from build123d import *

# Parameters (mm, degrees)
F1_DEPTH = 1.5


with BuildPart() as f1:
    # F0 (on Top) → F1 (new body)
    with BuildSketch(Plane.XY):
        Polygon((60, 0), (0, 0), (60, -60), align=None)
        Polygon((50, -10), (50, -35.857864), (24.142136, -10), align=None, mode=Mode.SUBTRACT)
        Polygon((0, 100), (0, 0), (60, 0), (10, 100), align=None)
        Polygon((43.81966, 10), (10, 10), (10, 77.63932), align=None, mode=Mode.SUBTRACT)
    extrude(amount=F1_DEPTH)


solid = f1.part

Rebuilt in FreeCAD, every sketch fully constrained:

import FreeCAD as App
import Part
import Sketcher
Q = App.Units.Quantity


def add_polygon(sketch, points):
    """Adds a closed chain of lines whose ends are joined by coincident constraints."""
    first, n = sketch.GeometryCount, len(points)
    for a, b in zip(points, points[1:] + points[:1]):
        sketch.addGeometry(Part.LineSegment(App.Vector(*a, 0), App.Vector(*b, 0)), False)
    for i in range(n):
        sketch.addConstraint(Sketcher.Constraint("Coincident", first + i, 2, first + (i + 1) % n, 1))

doc = App.newDocument("Part")
body = doc.addObject("PartDesign::Body", "Body")

# Sketch on XY plane
sketch1 = body.newObject("Sketcher::SketchObject", "Sketch")
sketch1.AttachmentSupport = (doc.getObject("XY_Plane"), [""])
sketch1.MapMode = "FlatFace"
add_polygon(sketch1, [(60, -60), (60, 0), (10, 100), (0, 100), (0, 0)])  # lines 0-4
add_polygon(sketch1, [(24.142136, -10), (50, -10), (50, -35.857864)])  # lines 5-7
add_polygon(sketch1, [(10, 77.63932), (43.81966, 10), (10, 10)])  # lines 8-10
sketch1.addConstraint([
    Sketcher.Constraint("Vertical", 0),
    Sketcher.Constraint("Horizontal", 2),
    Sketcher.Constraint("Vertical", 3),
    Sketcher.Constraint("Horizontal", 5),
    Sketcher.Constraint("Vertical", 6),
    Sketcher.Constraint("Horizontal", 9),
    Sketcher.Constraint("Vertical", 10),
    Sketcher.Constraint("Coincident", 3, 2, -1, 1),
    Sketcher.Constraint("PointOnObject", 0, 2, -1),
    Sketcher.Constraint("Parallel", 4, 7),
    Sketcher.Constraint("Parallel", 1, 8),
    Sketcher.Constraint("Vertical", 1, 2, 9, 2),
    Sketcher.Constraint("Equal", 5, 6),
    Sketcher.Constraint("DistanceX", 2, 2, 2, 1, Q("10 mm")),
    Sketcher.Constraint("DistanceY", 0, 1, 0, 2, Q("60 mm")),
    Sketcher.Constraint("DistanceY", 3, 2, 3, 1, Q("100 mm")),
    Sketcher.Constraint("DistanceX", -1, 1, 5, 2, Q("50 mm")),
    Sketcher.Constraint("DistanceY", 5, 2, -1, 1, Q("10 mm")),
    Sketcher.Constraint("DistanceY", -1, 1, 8, 2, Q("10 mm")),
    Sketcher.Constraint("DistanceX", 9, 2, 9, 1, Q("33.81966 mm")),
    Sketcher.Constraint("Distance", 7, Q("36.568542 mm")),
])
pad1 = body.newObject("PartDesign::Pad", "Pad")
pad1.Profile = sketch1
pad1.Length = 1.5

doc.recompute()
